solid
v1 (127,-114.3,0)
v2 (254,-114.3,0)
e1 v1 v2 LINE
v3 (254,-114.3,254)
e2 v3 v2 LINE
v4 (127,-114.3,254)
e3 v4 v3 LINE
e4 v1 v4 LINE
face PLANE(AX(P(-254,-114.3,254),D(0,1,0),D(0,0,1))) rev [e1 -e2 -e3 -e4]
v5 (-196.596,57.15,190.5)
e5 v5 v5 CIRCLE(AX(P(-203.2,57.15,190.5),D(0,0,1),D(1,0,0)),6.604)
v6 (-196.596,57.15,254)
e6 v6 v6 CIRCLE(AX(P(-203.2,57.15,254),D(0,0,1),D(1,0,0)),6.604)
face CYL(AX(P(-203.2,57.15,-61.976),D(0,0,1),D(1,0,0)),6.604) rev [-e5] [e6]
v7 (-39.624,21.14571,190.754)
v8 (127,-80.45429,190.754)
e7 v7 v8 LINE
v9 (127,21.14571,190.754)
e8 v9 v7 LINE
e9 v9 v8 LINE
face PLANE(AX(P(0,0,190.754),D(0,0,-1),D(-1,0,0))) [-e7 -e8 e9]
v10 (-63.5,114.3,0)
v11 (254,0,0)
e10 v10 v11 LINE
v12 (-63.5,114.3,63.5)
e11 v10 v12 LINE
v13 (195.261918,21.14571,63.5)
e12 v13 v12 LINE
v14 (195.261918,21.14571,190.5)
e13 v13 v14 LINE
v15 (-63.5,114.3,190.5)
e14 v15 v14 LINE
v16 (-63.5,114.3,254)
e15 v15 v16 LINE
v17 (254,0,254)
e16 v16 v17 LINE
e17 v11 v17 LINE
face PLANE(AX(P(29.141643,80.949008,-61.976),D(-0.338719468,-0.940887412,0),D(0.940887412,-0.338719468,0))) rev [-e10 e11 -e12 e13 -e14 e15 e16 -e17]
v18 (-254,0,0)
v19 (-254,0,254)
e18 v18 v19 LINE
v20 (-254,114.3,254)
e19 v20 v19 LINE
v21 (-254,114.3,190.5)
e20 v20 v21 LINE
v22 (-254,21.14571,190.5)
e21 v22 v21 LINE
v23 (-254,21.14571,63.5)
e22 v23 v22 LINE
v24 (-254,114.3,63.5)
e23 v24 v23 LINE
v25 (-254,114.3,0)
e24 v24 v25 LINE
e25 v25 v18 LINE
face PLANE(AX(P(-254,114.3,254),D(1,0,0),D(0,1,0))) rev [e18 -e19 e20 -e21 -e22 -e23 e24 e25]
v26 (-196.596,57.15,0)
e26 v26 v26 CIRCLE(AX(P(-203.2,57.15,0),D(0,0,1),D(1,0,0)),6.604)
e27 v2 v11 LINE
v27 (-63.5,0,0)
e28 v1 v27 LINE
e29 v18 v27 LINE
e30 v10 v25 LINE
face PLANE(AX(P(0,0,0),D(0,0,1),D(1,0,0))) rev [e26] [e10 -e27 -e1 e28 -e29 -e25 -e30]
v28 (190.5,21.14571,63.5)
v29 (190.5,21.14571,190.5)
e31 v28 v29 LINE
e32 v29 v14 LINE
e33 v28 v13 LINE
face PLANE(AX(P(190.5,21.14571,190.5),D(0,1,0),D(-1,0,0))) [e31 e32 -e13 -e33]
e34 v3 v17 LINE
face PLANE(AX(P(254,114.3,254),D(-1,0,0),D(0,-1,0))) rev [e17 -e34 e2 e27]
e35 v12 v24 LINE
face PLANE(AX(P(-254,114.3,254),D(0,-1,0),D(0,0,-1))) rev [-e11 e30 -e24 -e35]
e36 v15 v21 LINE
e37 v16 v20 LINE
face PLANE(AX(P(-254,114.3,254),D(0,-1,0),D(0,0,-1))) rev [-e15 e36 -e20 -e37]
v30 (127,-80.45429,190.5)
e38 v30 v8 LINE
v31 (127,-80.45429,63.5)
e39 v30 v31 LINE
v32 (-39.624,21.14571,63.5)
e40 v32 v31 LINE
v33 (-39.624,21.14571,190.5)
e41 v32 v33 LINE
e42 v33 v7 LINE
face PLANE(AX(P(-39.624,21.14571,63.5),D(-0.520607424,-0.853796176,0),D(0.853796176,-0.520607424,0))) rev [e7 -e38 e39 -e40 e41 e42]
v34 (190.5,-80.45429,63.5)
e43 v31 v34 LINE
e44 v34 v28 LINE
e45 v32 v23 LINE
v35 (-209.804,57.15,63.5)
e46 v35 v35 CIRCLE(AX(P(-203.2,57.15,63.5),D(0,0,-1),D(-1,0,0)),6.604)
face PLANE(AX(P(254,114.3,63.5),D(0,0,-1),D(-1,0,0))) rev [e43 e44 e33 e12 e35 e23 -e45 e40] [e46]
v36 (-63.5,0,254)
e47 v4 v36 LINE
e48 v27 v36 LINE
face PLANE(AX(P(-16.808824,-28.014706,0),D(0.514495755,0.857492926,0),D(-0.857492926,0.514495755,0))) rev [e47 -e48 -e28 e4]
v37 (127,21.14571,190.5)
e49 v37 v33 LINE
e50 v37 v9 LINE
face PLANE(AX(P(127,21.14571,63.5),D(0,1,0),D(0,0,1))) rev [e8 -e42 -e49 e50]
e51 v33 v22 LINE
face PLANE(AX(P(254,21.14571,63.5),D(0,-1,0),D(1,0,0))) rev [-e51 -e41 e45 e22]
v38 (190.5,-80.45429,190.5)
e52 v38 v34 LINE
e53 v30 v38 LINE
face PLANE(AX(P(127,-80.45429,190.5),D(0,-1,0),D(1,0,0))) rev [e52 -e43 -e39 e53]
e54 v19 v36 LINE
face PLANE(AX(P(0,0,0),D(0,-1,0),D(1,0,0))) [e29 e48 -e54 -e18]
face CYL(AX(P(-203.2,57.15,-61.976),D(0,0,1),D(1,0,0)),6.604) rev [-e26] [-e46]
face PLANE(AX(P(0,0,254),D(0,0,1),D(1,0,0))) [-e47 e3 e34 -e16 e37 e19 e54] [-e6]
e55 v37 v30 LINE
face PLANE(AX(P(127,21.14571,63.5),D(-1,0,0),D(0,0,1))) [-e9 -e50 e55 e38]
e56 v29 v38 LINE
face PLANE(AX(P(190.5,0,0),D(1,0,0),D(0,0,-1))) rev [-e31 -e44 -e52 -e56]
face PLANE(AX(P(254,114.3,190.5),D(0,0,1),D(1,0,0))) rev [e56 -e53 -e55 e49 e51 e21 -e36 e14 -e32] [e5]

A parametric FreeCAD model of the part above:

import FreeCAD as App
import Part
import Sketcher
from FreeCAD import Vector
Q = App.Units.Quantity

doc = App.newDocument("Part")
params = doc.addObject("Spreadsheet::Sheet", "Params")
for row, (alias, value) in enumerate([
    ("sketch1_width", "20 in"),
    ("sketch1_height", "9 in"),
    ("pad1_length", "10 in"),
    ("sketch2_height", "5 in"),
    ("sketch3_width", "15 in"),
    ("sketch3_width2", "7.5 in"),
    ("sketch3_height", "4.5 in"),
    ("pocket2_length", "10 in"),
    ("sketch4_width", "4 in"),
    ("sketch4_height", "5 in"),
    ("pocket3_length", "5 in"),
    ("sketch5_height", "4 in"),
    ("sketch5_width", "6.56 in"),
    ("pocket4_length", "5 in"),
    ("pocket4_length2", "0.01 in"),
    ("sketch6_width", "4 in"),
    ("sketch6_height", "5 in"),
    ("pad2_length", "2.5 in"),
    ("sketch7_width", "12.5 in"),
    ("sketch7_height", "4.5 in"),
    ("pocket5_length", "12.44 in"),
    ("sketch8_diameter", "0.52 in"),
    ("pocket6_length", "12.44 in"),
], start=1):
    params.set(f"A{row}", alias)
    params.set(f"B{row}", "=" + value)
    params.setAlias(f"B{row}", alias)

body = doc.addObject("PartDesign::Body", "Body")

sketch1 = doc.addObject("Sketcher::SketchObject", "Sketch")
body.addObject(sketch1)
sketch1.AttachmentSupport = (doc.XY_Plane, [""])
sketch1.MapMode = "FlatFace"
sketch1.addGeometry([
    Part.LineSegment(Vector(-254, 114, 0), Vector(-254, -114, 0)),
    Part.LineSegment(Vector(-254, -114, 0), Vector(254, -114, 0)),
    Part.LineSegment(Vector(254, -114, 0), Vector(254, 114, 0)),
    Part.LineSegment(Vector(254, 114, 0), Vector(-254, 114, 0)),
], False)
sketch1.addConstraint([
    Sketcher.Constraint("Coincident", 0, 2, 1, 1),
    Sketcher.Constraint("Coincident", 1, 2, 2, 1),
    Sketcher.Constraint("Coincident", 2, 2, 3, 1),
    Sketcher.Constraint("Coincident", 3, 2, 0, 1),
    Sketcher.Constraint("Vertical", 0),
    Sketcher.Constraint("Horizontal", 1),
    Sketcher.Constraint("Vertical", 2),
    Sketcher.Constraint("Horizontal", 3),
    Sketcher.Constraint("Symmetric", 0, 2, 2, 2, -1, 1),
    Sketcher.Constraint("DistanceX", 1, 1, 1, 2, Q("20 in")),
    Sketcher.Constraint("DistanceY", 0, 2, 0, 1, Q("9 in")),
])
sketch1.setExpression("Constraints[9]", "Params.sketch1_width")
sketch1.setExpression("Constraints[10]", "Params.sketch1_height")
pad1 = doc.addObject("PartDesign::Pad", "Pad")
body.addObject(pad1)
pad1.Profile = sketch1
pad1.setExpression("Length", "Params.pad1_length")

sketch2 = doc.addObject("Sketcher::SketchObject", "Sketch001")
body.addObject(sketch2)
sketch2.AttachmentSupport = (doc.YZ_Plane, [""])
sketch2.MapMode = "FlatFace"
sketch2.AttachmentOffset = App.Placement(Vector(0, 0, -10 * 25.4), App.Rotation())
sketch2.addGeometry([
    Part.LineSegment(Vector(114, 64, 0), Vector(21, 64, 0)),
    Part.LineSegment(Vector(21, 64, 0), Vector(21, 190, 0)),
    Part.LineSegment(Vector(21, 190, 0), Vector(114, 190, 0)),
    Part.LineSegment(Vector(114, 190, 0), Vector(114, 64, 0)),
], False)
sketch2.addConstraint([
    Sketcher.Constraint("Coincident", 0, 2, 1, 1),
    Sketcher.Constraint("Coincident", 1, 2, 2, 1),
    Sketcher.Constraint("Coincident", 2, 2, 3, 1),
    Sketcher.Constraint("Coincident", 3, 2, 0, 1),
    Sketcher.Constraint("Horizontal", 0),
    Sketcher.Constraint("Vertical", 1),
    Sketcher.Constraint("Horizontal", 2),
    Sketcher.Constraint("Vertical", 3),
    Sketcher.Constraint("DistanceY", 1, 1, 1, 2, Q("5 in")),
    Sketcher.Constraint("DistanceY", -1, 1, 0, 2, Q("2.5 in")),
    Sketcher.Constraint("DistanceX", -1, 1, 2, 2, Q("4.5 in")),
    Sketcher.Constraint("DistanceX", 0, 2, 0, 1, 93.15429),
])
sketch2.setExpression("Constraints[8]", "Params.sketch2_height")
pocket1 = doc.addObject("PartDesign::Pocket", "Pocket")
body.addObject(pocket1)
pocket1.Profile = sketch2
pocket1.Type = "ThroughAll"
pocket1.Reversed = True

sketch3 = doc.addObject("Sketcher::SketchObject", "Sketch002")
body.addObject(sketch3)
sketch3.AttachmentSupport = (doc.XY_Plane, [""])
sketch3.MapMode = "FlatFace"
sketch3.AttachmentOffset = App.Placement(Vector(0, 0, 10 * 25.4), App.Rotation())
sketch3.addGeometry([
    Part.LineSegment(Vector(-254, 0, 0), Vector(-254, -114, 0)),
    Part.LineSegment(Vector(-254, -114, 0), Vector(127, -114, 0)),
    Part.LineSegment(Vector(127, -114, 0), Vector(-64, 0, 0)),
    Part.LineSegment(Vector(-64, 0, 0), Vector(-254, 0, 0)),
], False)
sketch3.addConstraint([
    Sketcher.Constraint("Coincident", 0, 2, 1, 1),
    Sketcher.Constraint("Coincident", 1, 2, 2, 1),
    Sketcher.Constraint("Coincident", 2, 2, 3, 1),
    Sketcher.Constraint("Coincident", 3, 2, 0, 1),
    Sketcher.Constraint("Vertical", 0),
    Sketcher.Constraint("Horizontal", 1),
    Sketcher.Constraint("Horizontal", 3),
    Sketcher.Constraint("PointOnObject", 2, 2, -1),
    Sketcher.Constraint("DistanceX", 1, 1, 1, 2, Q("15 in")),
    Sketcher.Constraint("DistanceX", 3, 2, 3, 1, Q("7.5 in")),
    Sketcher.Constraint("DistanceY", 0, 2, 0, 1, Q("4.5 in")),
    Sketcher.Constraint("DistanceX", 0, 2, -1, 1, Q("10 in")),
])
sketch3.setExpression("Constraints[8]", "Params.sketch3_width")
sketch3.setExpression("Constraints[9]", "Params.sketch3_width2")
sketch3.setExpression("Constraints[10]", "Params.sketch3_height")
pocket2 = doc.addObject("PartDesign::Pocket", "Pocket001")
body.addObject(pocket2)
pocket2.Profile = sketch3
pocket2.setExpression("Length", "Params.pocket2_length")

sketch4 = doc.addObject("Sketcher::SketchObject", "Sketch003")
body.addObject(sketch4)
sketch4.AttachmentSupport = (doc.YZ_Plane, [""])
sketch4.MapMode = "FlatFace"
sketch4.AttachmentOffset = App.Placement(Vector(0, 0, 10 * 25.4), App.Rotation())
sketch4.addGeometry([
    Part.LineSegment(Vector(21, 190, 0), Vector(-80, 190, 0)),
    Part.LineSegment(Vector(-80, 190, 0), Vector(-80, 64, 0)),
    Part.LineSegment(Vector(-80, 64, 0), Vector(21, 64, 0)),
    Part.LineSegment(Vector(21, 64, 0), Vector(21, 190, 0)),
], False)
sketch4.addConstraint([
    Sketcher.Constraint("Coincident", 0, 2, 1, 1),
    Sketcher.Constraint("Coincident", 1, 2, 2, 1),
    Sketcher.Constraint("Coincident", 2, 2, 3, 1),
    Sketcher.Constraint("Coincident", 3, 2, 0, 1),
    Sketcher.Constraint("Horizontal", 0),
    Sketcher.Constraint("Vertical", 1),
    Sketcher.Constraint("Horizontal", 2),
    Sketcher.Constraint("Vertical", 3),
    Sketcher.Constraint("DistanceX", 0, 2, 0, 1, Q("4 in")),
    Sketcher.Constraint("DistanceY", 1, 2, 1, 1, Q("5 in")),
    Sketcher.Constraint("DistanceY", -1, 1, 0, 2, Q("7.5 in")),
    Sketcher.Constraint("DistanceX", 0, 2, -1, 1, 80.45429),
])
sketch4.setExpression("Constraints[8]", "Params.sketch4_width")
sketch4.setExpression("Constraints[9]", "Params.sketch4_height")
pocket3 = doc.addObject("PartDesign::Pocket", "Pocket002")
body.addObject(pocket3)
pocket3.Profile = sketch4
pocket3.setExpression("Length", "Params.pocket3_length")

sketch5 = doc.addObject("Sketcher::SketchObject", "Sketch004")
body.addObject(sketch5)
sketch5.AttachmentSupport = (doc.XY_Plane, [""])
sketch5.MapMode = "FlatFace"
sketch5.AttachmentOffset = App.Placement(Vector(0, 0, 7.5 * 25.4), App.Rotation())
sketch5.addGeometry([
    Part.LineSegment(Vector(-40, 21, 0), Vector(127, 21, 0)),
    Part.LineSegment(Vector(127, 21, 0), Vector(127, -80, 0)),
    Part.LineSegment(Vector(127, -80, 0), Vector(-40, 21, 0)),
], False)
sketch5.addConstraint([
    Sketcher.Constraint("Coincident", 0, 2, 1, 1),
    Sketcher.Constraint("Coincident", 1, 2, 2, 1),
    Sketcher.Constraint("Coincident", 2, 2, 0, 1),
    Sketcher.Constraint("Horizontal", 0),
    Sketcher.Constraint("Vertical", 1),
    Sketcher.Constraint("DistanceY", 1, 2, 1, 1, Q("4 in")),
    Sketcher.Constraint("DistanceX", -1, 1, 0, 2, Q("5 in")),
    Sketcher.Constraint("DistanceX", 0, 1, 0, 2, Q("6.56 in")),
    Sketcher.Constraint("DistanceY", -1, 1, 0, 2, 21.14571),
])
sketch5.setExpression("Constraints[5]", "Params.sketch5_height")
sketch5.setExpression("Constraints[7]", "Params.sketch5_width")
pocket4 = doc.addObject("PartDesign::Pocket", "Pocket003")
body.addObject(pocket4)
pocket4.Profile = sketch5
pocket4.Type = "TwoLengths"
pocket4.setExpression("Length", "Params.pocket4_length")
pocket4.setExpression("Length2", "Params.pocket4_length2")

sketch6 = doc.addObject("Sketcher::SketchObject", "Sketch005")
body.addObject(sketch6)
sketch6.AttachmentSupport = (doc.YZ_Plane, [""])
sketch6.MapMode = "FlatFace"
sketch6.AttachmentOffset = App.Placement(Vector(0, 0, 10 * 25.4), App.Rotation())
sketch6.addGeometry([
    Part.LineSegment(Vector(21, 190, 0), Vector(-80, 190, 0)),
    Part.LineSegment(Vector(-80, 190, 0), Vector(-80, 64, 0)),
    Part.LineSegment(Vector(-80, 64, 0), Vector(21, 64, 0)),
    Part.LineSegment(Vector(21, 64, 0), Vector(21, 190, 0)),
], False)
sketch6.addConstraint([
    Sketcher.Constraint("Coincident", 0, 2, 1, 1),
    Sketcher.Constraint("Coincident", 1, 2, 2, 1),
    Sketcher.Constraint("Coincident", 2, 2, 3, 1),
    Sketcher.Constraint("Coincident", 3, 2, 0, 1),
    Sketcher.Constraint("Horizontal", 0),
    Sketcher.Constraint("Vertical", 1),
    Sketcher.Constraint("Horizontal", 2),
    Sketcher.Constraint("Vertical", 3),
    Sketcher.Constraint("DistanceX", 0, 2, 0, 1, Q("4 in")),
    Sketcher.Constraint("DistanceY", 1, 2, 1, 1, Q("5 in")),
    Sketcher.Constraint("DistanceY", -1, 1, 0, 2, Q("7.5 in")),
    Sketcher.Constraint("DistanceX", 0, 2, -1, 1, 80.45429),
])
sketch6.setExpression("Constraints[8]", "Params.sketch6_width")
sketch6.setExpression("Constraints[9]", "Params.sketch6_height")
pad2 = doc.addObject("PartDesign::Pad", "Pad001")
body.addObject(pad2)
pad2.Profile = sketch6
pad2.setExpression("Length", "Params.pad2_length")
pad2.Reversed = True

sketch7 = doc.addObject("Sketcher::SketchObject", "Sketch006")
body.addObject(sketch7)
sketch7.AttachmentSupport = (doc.XY_Plane, [""])
sketch7.MapMode = "FlatFace"
sketch7.AttachmentOffset = App.Placement(Vector(0, 0, 10 * 25.4), App.Rotation())
sketch7.addGeometry([
    Part.LineSegment(Vector(254, 114, 0), Vector(-64, 114, 0)),
    Part.LineSegment(Vector(-64, 114, 0), Vector(254, 0, 0)),
    Part.LineSegment(Vector(254, 0, 0), Vector(254, 114, 0)),
], False)
sketch7.addConstraint([
    Sketcher.Constraint("Coincident", 0, 2, 1, 1),
    Sketcher.Constraint("Coincident", 1, 2, 2, 1),
    Sketcher.Constraint("Coincident", 2, 2, 0, 1),
    Sketcher.Constraint("Horizontal", 0),
    Sketcher.Constraint("Vertical", 2),
    Sketcher.Constraint("PointOnObject", 1, 2, -1),
    Sketcher.Constraint("DistanceX", 0, 2, 0, 1, Q("12.5 in")),
    Sketcher.Constraint("DistanceY", 2, 1, 2, 2, Q("4.5 in")),
    Sketcher.Constraint("DistanceX", -1, 1, 1, 2, Q("10 in")),
])
sketch7.setExpression("Constraints[6]", "Params.sketch7_width")
sketch7.setExpression("Constraints[7]", "Params.sketch7_height")
pocket5 = doc.addObject("PartDesign::Pocket", "Pocket004")
body.addObject(pocket5)
pocket5.Profile = sketch7
pocket5.setExpression("Length", "Params.pocket5_length")

sketch8 = doc.addObject("Sketcher::SketchObject", "Sketch007")
body.addObject(sketch8)
sketch8.AttachmentSupport = (doc.XY_Plane, [""])
sketch8.MapMode = "FlatFace"
sketch8.AttachmentOffset = App.Placement(Vector(0, 0, 10 * 25.4), App.Rotation())
sketch8.addGeometry(Part.Circle(Vector(-203, 57, 0), Vector(0, 0, 1), 7), False)
sketch8.addConstraint([
    Sketcher.Constraint("Diameter", 0, Q("0.52 in")),
    Sketcher.Constraint("DistanceX", 0, 3, -1, 1, Q("8 in")),
    Sketcher.Constraint("DistanceY", -1, 1, 0, 3, Q("2.25 in")),
])
sketch8.setExpression("Constraints[0]", "Params.sketch8_diameter")
pocket6 = doc.addObject("PartDesign::Pocket", "Pocket005")
body.addObject(pocket6)
pocket6.Profile = sketch8
pocket6.setExpression("Length", "Params.pocket6_length")

doc.recompute()
